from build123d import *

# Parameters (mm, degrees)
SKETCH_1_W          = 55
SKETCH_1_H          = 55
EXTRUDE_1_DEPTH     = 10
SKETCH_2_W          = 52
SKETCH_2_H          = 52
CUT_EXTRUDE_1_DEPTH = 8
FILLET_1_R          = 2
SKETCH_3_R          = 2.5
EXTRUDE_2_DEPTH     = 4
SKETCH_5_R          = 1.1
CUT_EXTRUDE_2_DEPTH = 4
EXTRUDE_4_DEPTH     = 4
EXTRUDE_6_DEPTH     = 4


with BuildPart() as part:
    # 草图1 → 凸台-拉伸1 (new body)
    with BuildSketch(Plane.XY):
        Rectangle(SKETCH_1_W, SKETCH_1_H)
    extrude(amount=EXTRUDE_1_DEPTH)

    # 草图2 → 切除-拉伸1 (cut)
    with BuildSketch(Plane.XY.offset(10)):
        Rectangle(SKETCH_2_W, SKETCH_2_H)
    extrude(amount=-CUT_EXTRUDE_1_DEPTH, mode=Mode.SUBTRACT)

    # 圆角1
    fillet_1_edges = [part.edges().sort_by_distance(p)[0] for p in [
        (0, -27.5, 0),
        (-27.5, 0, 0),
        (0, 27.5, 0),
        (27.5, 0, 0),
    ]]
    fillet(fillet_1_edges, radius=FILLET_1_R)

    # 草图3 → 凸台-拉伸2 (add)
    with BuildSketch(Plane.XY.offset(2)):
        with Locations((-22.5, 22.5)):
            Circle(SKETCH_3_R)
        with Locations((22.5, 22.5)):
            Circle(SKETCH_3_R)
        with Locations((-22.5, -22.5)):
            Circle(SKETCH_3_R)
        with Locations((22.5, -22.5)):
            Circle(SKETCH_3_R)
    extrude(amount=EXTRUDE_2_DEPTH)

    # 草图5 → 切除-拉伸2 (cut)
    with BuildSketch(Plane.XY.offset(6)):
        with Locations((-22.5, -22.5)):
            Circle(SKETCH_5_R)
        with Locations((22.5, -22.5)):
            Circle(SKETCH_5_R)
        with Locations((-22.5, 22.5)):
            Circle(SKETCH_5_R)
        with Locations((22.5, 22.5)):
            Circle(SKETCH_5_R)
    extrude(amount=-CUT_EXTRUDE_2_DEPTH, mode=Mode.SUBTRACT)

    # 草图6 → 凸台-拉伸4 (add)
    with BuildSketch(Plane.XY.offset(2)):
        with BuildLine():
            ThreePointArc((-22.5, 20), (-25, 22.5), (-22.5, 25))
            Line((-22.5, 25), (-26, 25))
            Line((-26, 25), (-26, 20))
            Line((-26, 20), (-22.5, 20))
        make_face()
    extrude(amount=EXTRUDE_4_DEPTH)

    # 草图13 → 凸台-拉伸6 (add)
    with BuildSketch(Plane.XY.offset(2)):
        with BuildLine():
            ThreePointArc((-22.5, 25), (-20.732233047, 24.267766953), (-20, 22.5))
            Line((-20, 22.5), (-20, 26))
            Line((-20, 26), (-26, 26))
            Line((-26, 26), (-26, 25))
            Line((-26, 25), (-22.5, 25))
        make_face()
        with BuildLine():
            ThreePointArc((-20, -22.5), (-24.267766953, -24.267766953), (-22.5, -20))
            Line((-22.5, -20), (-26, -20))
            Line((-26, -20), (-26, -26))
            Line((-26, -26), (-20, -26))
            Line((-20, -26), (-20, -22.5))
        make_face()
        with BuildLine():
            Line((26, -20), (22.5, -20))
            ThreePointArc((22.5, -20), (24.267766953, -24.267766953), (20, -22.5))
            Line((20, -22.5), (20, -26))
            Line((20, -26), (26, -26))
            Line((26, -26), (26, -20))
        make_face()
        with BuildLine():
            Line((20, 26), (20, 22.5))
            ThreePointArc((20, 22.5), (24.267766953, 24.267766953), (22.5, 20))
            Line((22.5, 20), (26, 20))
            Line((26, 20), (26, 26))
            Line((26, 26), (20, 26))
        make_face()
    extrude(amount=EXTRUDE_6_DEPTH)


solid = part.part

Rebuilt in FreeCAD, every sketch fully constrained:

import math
import FreeCAD as App
import Part
import Sketcher
Q = App.Units.Quantity


def edges_at(feature, points):
    """Names of the edges that pass closest to the given points."""
    edges = feature.Shape.Edges
    near = lambda p: min(range(len(edges)), key=lambda i: edges[i].distToShape(Part.Vertex(*p))[0])
    return sorted({f"Edge{near(p) + 1}" for p in points})

doc = App.newDocument("Part")
body = doc.addObject("PartDesign::Body", "Body")

# Sketch on XY plane
sketch1 = body.newObject("Sketcher::SketchObject", "Sketch")
sketch1.AttachmentSupport = (doc.getObject("XY_Plane"), [""])
sketch1.MapMode = "FlatFace"
sketch1.addGeometry([
    Part.LineSegment(App.Vector(-28, 28, 0), App.Vector(-28, -28, 0)),
    Part.LineSegment(App.Vector(-28, -28, 0), App.Vector(28, -28, 0)),
    Part.LineSegment(App.Vector(28, -28, 0), App.Vector(28, 28, 0)),
    Part.LineSegment(App.Vector(28, 28, 0), App.Vector(-28, 28, 0)),
], False)
sketch1.addConstraint([
    Sketcher.Constraint("Coincident", 0, 2, 1, 1),
    Sketcher.Constraint("Coincident", 1, 2, 2, 1),
    Sketcher.Constraint("Coincident", 2, 2, 3, 1),
    Sketcher.Constraint("Coincident", 3, 2, 0, 1),
    Sketcher.Constraint("Vertical", 0),
    Sketcher.Constraint("Horizontal", 1),
    Sketcher.Constraint("Vertical", 2),
    Sketcher.Constraint("Horizontal", 3),
    Sketcher.Constraint("Symmetric", 0, 2, 2, 2, -1, 1),
    Sketcher.Constraint("Equal", 3, 0),
    Sketcher.Constraint("DistanceX", 1, 1, 1, 2, Q("55 mm")),
])
pad1 = body.newObject("PartDesign::Pad", "Pad")
pad1.Profile = sketch1
pad1.Length = 10

# Sketch on XY plane
sketch2 = body.newObject("Sketcher::SketchObject", "Sketch001")
sketch2.AttachmentSupport = (doc.getObject("XY_Plane"), [""])
sketch2.MapMode = "FlatFace"
sketch2.AttachmentOffset = App.Placement(App.Vector(0, 0, 10), App.Rotation())
sketch2.addGeometry([
    Part.LineSegment(App.Vector(-26, 26, 0), App.Vector(-26, -26, 0)),
    Part.LineSegment(App.Vector(-26, -26, 0), App.Vector(26, -26, 0)),
    Part.LineSegment(App.Vector(26, -26, 0), App.Vector(26, 26, 0)),
    Part.LineSegment(App.Vector(26, 26, 0), App.Vector(-26, 26, 0)),
], False)
sketch2.addConstraint([
    Sketcher.Constraint("Coincident", 0, 2, 1, 1),
    Sketcher.Constraint("Coincident", 1, 2, 2, 1),
    Sketcher.Constraint("Coincident", 2, 2, 3, 1),
    Sketcher.Constraint("Coincident", 3, 2, 0, 1),
    Sketcher.Constraint("Vertical", 0),
    Sketcher.Constraint("Horizontal", 1),
    Sketcher.Constraint("Vertical", 2),
    Sketcher.Constraint("Horizontal", 3),
    Sketcher.Constraint("Symmetric", 0, 2, 2, 2, -1, 1),
    Sketcher.Constraint("Equal", 3, 0),
    Sketcher.Constraint("DistanceX", 1, 1, 1, 2, Q("52 mm")),
])
pocket1 = body.newObject("PartDesign::Pocket", "Pocket")
pocket1.Profile = sketch2
pocket1.Length = 8
doc.recompute()

fillet = body.newObject("PartDesign::Fillet", "Fillet")
fillet.Base = (pocket1, edges_at(pocket1, [
    (0, -27.5, 0),
    (-27.5, 0, 0),
    (0, 27.5, 0),
    (27.5, 0, 0),
]))
fillet.Radius = 2

# Sketch on XY plane
sketch3 = body.newObject("Sketcher::SketchObject", "Sketch002")
sketch3.AttachmentSupport = (doc.getObject("XY_Plane"), [""])
sketch3.MapMode = "FlatFace"
sketch3.AttachmentOffset = App.Placement(App.Vector(0, 0, 2), App.Rotation())
sketch3.addGeometry([
    Part.Circle(App.Vector(-22.5, 22.5, 0), App.Vector(0, 0, 1), 2.5),
    Part.Circle(App.Vector(22.5, 22.5, 0), App.Vector(0, 0, 1), 2.5),
    Part.Circle(App.Vector(-22.5, -22.5, 0), App.Vector(0, 0, 1), 2.5),
    Part.Circle(App.Vector(22.5, -22.5, 0), App.Vector(0, 0, 1), 2.5),
], False)
sketch3.addConstraint([
    Sketcher.Constraint("Equal", 0, 1),
    Sketcher.Constraint("Equal", 1, 2),
    Sketcher.Constraint("Equal", 2, 3),
    Sketcher.Constraint("Symmetric", 1, 3, 2, 3, -1, 1),
    Sketcher.Constraint("Symmetric", 0, 3, 3, 3, -1, 1),
    Sketcher.Constraint("Symmetric", 0, 3, 1, 3, -2),
    Sketcher.Constraint("Diameter", 0, Q("5 mm")),
    Sketcher.Constraint("DistanceX", 0, 3, 1, 3, Q("45 mm")),
    Sketcher.Constraint("DistanceY", 2, 3, 0, 3, Q("45 mm")),
])
pad2 = body.newObject("PartDesign::Pad", "Pad001")
pad2.Profile = sketch3
pad2.Length = 4

# Sketch on XY plane
sketch4 = body.newObject("Sketcher::SketchObject", "Sketch003")
sketch4.AttachmentSupport = (doc.getObject("XY_Plane"), [""])
sketch4.MapMode = "FlatFace"
sketch4.AttachmentOffset = App.Placement(App.Vector(0, 0, 6), App.Rotation())
sketch4.addGeometry([
    Part.Circle(App.Vector(-22.5, -22.5, 0), App.Vector(0, 0, 1), 1.1),
    Part.Circle(App.Vector(22.5, -22.5, 0), App.Vector(0, 0, 1), 1.1),
    Part.Circle(App.Vector(-22.5, 22.5, 0), App.Vector(0, 0, 1), 1.1),
    Part.Circle(App.Vector(22.5, 22.5, 0), App.Vector(0, 0, 1), 1.1),
], False)
sketch4.addConstraint([
    Sketcher.Constraint("Equal", 0, 1),
    Sketcher.Constraint("Equal", 1, 2),
    Sketcher.Constraint("Equal", 2, 3),
    Sketcher.Constraint("Symmetric", 1, 3, 2, 3, -1, 1),
    Sketcher.Constraint("Symmetric", 0, 3, 3, 3, -1, 1),
    Sketcher.Constraint("Symmetric", 0, 3, 1, 3, -2),
    Sketcher.Constraint("Diameter", 0, Q("2.2 mm")),
    Sketcher.Constraint("DistanceX", 0, 3, 1, 3, Q("45 mm")),
    Sketcher.Constraint("DistanceY", 0, 3, 2, 3, Q("45 mm")),
])
pocket2 = body.newObject("PartDesign::Pocket", "Pocket001")
pocket2.Profile = sketch4
pocket2.Length = 4

# Sketch on XY plane
sketch5 = body.newObject("Sketcher::SketchObject", "Sketch004")
sketch5.AttachmentSupport = (doc.getObject("XY_Plane"), [""])
sketch5.MapMode = "FlatFace"
sketch5.AttachmentOffset = App.Placement(App.Vector(0, 0, 2), App.Rotation())
sketch5.addGeometry([
    Part.ArcOfCircle(Part.Circle(App.Vector(-22.5, 22.5, 0), App.Vector(0, 0, 1), 2.5), math.radians(90), math.radians(270)),
    Part.LineSegment(App.Vector(-22.5, 25, 0), App.Vector(-26, 25, 0)),
    Part.LineSegment(App.Vector(-26, 25, 0), App.Vector(-26, 20, 0)),
    Part.LineSegment(App.Vector(-26, 20, 0), App.Vector(-22.5, 20, 0)),
], False)
sketch5.addConstraint([
    Sketcher.Constraint("Tangent", 0, 1, 1, 1),
    Sketcher.Constraint("Coincident", 1, 2, 2, 1),
    Sketcher.Constraint("Coincident", 2, 2, 3, 1),
    Sketcher.Constraint("Tangent", 3, 2, 0, 2),
    Sketcher.Constraint("Horizontal", 1),
    Sketcher.Constraint("Vertical", 2),
    Sketcher.Constraint("Horizontal", 3),
    Sketcher.Constraint("Radius", 0, Q("2.5 mm")),
    Sketcher.Constraint("DistanceX", 1, 2, 1, 1, Q("3.5 mm")),
    Sketcher.Constraint("DistanceY", -1, 1, 0, 1, Q("25 mm")),
    Sketcher.Constraint("DistanceX", 1, 2, -1, 1, Q("26 mm")),
])
pad3 = body.newObject("PartDesign::Pad", "Pad002")
pad3.Profile = sketch5
pad3.Length = 4

# Sketch on XY plane
sketch6 = body.newObject("Sketcher::SketchObject", "Sketch005")
sketch6.AttachmentSupport = (doc.getObject("XY_Plane"), [""])
sketch6.MapMode = "FlatFace"
sketch6.AttachmentOffset = App.Placement(App.Vector(0, 0, 2), App.Rotation())
sketch6.addGeometry([
    Part.ArcOfCircle(Part.Circle(App.Vector(-22.5, 22.5, 0), App.Vector(0, 0, 1), 2.5), math.radians(0), math.radians(90)),  # 0
    Part.LineSegment(App.Vector(-20, 22.5, 0), App.Vector(-20, 26, 0)),  # 1
    Part.LineSegment(App.Vector(-20, 26, 0), App.Vector(-26, 26, 0)),  # 2
    Part.LineSegment(App.Vector(-26, 26, 0), App.Vector(-26, 25, 0)),  # 3
    Part.LineSegment(App.Vector(-26, 25, 0), App.Vector(-22.5, 25, 0)),  # 4
    Part.ArcOfCircle(Part.Circle(App.Vector(-22.5, -22.5, 0), App.Vector(0, 0, 1), 2.5), math.radians(90), math.radians(360)),  # 5
    Part.LineSegment(App.Vector(-22.5, -20, 0), App.Vector(-26, -20, 0)),  # 6
    Part.LineSegment(App.Vector(-26, -20, 0), App.Vector(-26, -26, 0)),  # 7
    Part.LineSegment(App.Vector(-26, -26, 0), App.Vector(-20, -26, 0)),  # 8
    Part.LineSegment(App.Vector(-20, -26, 0), App.Vector(-20, -22.5, 0)),  # 9
    Part.LineSegment(App.Vector(26, -20, 0), App.Vector(22.5, -20, 0)),  # 10
    Part.ArcOfCircle(Part.Circle(App.Vector(22.5, -22.5, 0), App.Vector(0, 0, 1), 2.5), math.radians(180), math.radians(450)),  # 11
    Part.LineSegment(App.Vector(20, -22.5, 0), App.Vector(20, -26, 0)),  # 12
    Part.LineSegment(App.Vector(20, -26, 0), App.Vector(26, -26, 0)),  # 13
    Part.LineSegment(App.Vector(26, -26, 0), App.Vector(26, -20, 0)),  # 14
    Part.LineSegment(App.Vector(20, 26, 0), App.Vector(20, 22.5, 0)),  # 15
    Part.ArcOfCircle(Part.Circle(App.Vector(22.5, 22.5, 0), App.Vector(0, 0, 1), 2.5), math.radians(-90), math.radians(180)),  # 16
    Part.LineSegment(App.Vector(22.5, 20, 0), App.Vector(26, 20, 0)),  # 17
    Part.LineSegment(App.Vector(26, 20, 0), App.Vector(26, 26, 0)),  # 18
    Part.LineSegment(App.Vector(26, 26, 0), App.Vector(20, 26, 0)),  # 19
], False)
sketch6.addConstraint([
    Sketcher.Constraint("Tangent", 0, 1, 1, 1),
    Sketcher.Constraint("Coincident", 1, 2, 2, 1),
    Sketcher.Constraint("Coincident", 2, 2, 3, 1),
    Sketcher.Constraint("Coincident", 3, 2, 4, 1),
    Sketcher.Constraint("Tangent", 4, 2, 0, 2),
    Sketcher.Constraint("Tangent", 5, 1, 6, 1),
    Sketcher.Constraint("Coincident", 6, 2, 7, 1),
    Sketcher.Constraint("Coincident", 7, 2, 8, 1),
    Sketcher.Constraint("Coincident", 8, 2, 9, 1),
    Sketcher.Constraint("Tangent", 9, 2, 5, 2),
    Sketcher.Constraint("Tangent", 10, 2, 11, 2),
    Sketcher.Constraint("Tangent", 11, 1, 12, 1),
    Sketcher.Constraint("Coincident", 12, 2, 13, 1),
    Sketcher.Constraint("Coincident", 13, 2, 14, 1),
    Sketcher.Constraint("Coincident", 14, 2, 10, 1),
    Sketcher.Constraint("Tangent", 15, 2, 16, 2),
    Sketcher.Constraint("Tangent", 16, 1, 17, 1),
    Sketcher.Constraint("Coincident", 17, 2, 18, 1),
    Sketcher.Constraint("Coincident", 18, 2, 19, 1),
    Sketcher.Constraint("Coincident", 19, 2, 15, 1),
    Sketcher.Constraint("Vertical", 1),
    Sketcher.Constraint("Horizontal", 2),
    Sketcher.Constraint("Vertical", 3),
    Sketcher.Constraint("Horizontal", 4),
    Sketcher.Constraint("Horizontal", 6),
    Sketcher.Constraint("Vertical", 7),
    Sketcher.Constraint("Horizontal", 8),
    Sketcher.Constraint("Vertical", 9),
    Sketcher.Constraint("Horizontal", 10),
    Sketcher.Constraint("Vertical", 12),
    Sketcher.Constraint("Horizontal", 13),
    Sketcher.Constraint("Vertical", 14),
    Sketcher.Constraint("Vertical", 15),
    Sketcher.Constraint("Horizontal", 17),
    Sketcher.Constraint("Vertical", 18),
    Sketcher.Constraint("Horizontal", 19),
    Sketcher.Constraint("Equal", 0, 5),
    Sketcher.Constraint("Equal", 5, 11),
    Sketcher.Constraint("Equal", 11, 16),
    Sketcher.Constraint("Symmetric", 0, 3, 11, 3, -1, 1),
    Sketcher.Constraint("Symmetric", 5, 3, 16, 3, -1, 1),
    Sketcher.Constraint("Symmetric", 2, 2, 13, 2, -1, 1),
    Sketcher.Constraint("Symmetric", 7, 2, 18, 2, -1, 1),
    Sketcher.Constraint("Symmetric", 5, 3, 11, 3, -2),
    Sketcher.Constraint("Symmetric", 7, 2, 13, 2, -2),
    Sketcher.Constraint("Equal", 17, 1),
    Sketcher.Constraint("Radius", 0, Q("2.5 mm")),
    Sketcher.Constraint("DistanceX", 2, 2, 2, 1, Q("6 mm")),
    Sketcher.Constraint("DistanceX", 0, 1, -1, 1, Q("20 mm")),
    Sketcher.Constraint("DistanceY", -1, 1, 1, 2, Q("26 mm")),
])
pad4 = body.newObject("PartDesign::Pad", "Pad003")
pad4.Profile = sketch6
pad4.Length = 4

doc.recompute()
